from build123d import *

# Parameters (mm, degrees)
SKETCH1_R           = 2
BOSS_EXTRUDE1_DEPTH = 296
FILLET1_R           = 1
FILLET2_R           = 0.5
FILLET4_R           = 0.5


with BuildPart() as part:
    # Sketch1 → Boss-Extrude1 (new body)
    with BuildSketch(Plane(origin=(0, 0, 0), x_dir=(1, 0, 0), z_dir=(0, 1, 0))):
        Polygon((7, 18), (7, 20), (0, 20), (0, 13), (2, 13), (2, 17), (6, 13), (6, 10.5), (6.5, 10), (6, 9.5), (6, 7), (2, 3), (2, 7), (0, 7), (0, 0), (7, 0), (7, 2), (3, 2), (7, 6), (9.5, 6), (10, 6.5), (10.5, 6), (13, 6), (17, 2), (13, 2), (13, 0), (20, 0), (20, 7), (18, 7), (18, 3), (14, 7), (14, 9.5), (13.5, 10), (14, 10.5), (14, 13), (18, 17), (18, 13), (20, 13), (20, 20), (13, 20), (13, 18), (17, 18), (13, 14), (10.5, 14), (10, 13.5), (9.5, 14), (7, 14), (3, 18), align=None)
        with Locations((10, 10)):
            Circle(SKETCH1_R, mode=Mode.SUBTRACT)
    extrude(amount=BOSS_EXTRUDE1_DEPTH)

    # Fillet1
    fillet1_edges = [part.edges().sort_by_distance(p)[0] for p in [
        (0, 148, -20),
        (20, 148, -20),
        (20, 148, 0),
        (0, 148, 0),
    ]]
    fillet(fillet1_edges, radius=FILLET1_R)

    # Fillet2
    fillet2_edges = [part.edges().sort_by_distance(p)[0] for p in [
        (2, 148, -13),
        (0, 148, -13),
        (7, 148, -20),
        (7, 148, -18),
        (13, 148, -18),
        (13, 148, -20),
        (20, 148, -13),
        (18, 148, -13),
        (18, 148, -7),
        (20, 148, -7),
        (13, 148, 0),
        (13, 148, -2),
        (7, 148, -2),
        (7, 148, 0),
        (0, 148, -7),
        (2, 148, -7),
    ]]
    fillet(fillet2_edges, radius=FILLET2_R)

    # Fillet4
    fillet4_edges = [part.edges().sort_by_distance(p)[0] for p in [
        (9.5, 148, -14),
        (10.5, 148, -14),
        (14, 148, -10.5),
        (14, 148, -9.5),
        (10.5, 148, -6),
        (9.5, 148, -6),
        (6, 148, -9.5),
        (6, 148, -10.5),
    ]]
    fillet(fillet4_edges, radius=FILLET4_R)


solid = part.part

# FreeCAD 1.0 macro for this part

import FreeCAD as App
import Part
import Sketcher

V = App.Vector
Q = App.Units.Quantity


def edges_at(feature, points):
    """Names of the edges that pass closest to the given points."""
    edges = feature.Shape.Edges
    near = lambda p: min(range(len(edges)), key=lambda i: edges[i].distToShape(Part.Vertex(*p))[0])
    return sorted({f"Edge{near(p) + 1}" for p in points})

doc = App.newDocument("Part")
body = doc.addObject("PartDesign::Body", "Body")

# Sketch on XZ plane
sketch1 = body.newObject("Sketcher::SketchObject", "Sketch")
sketch1.AttachmentSupport = (doc.getObject("XZ_Plane"), [""])
sketch1.MapMode = "FlatFace"
sketch1.addGeometry([
    Part.LineSegment(V(7, -18, 0), V(7, -20, 0)),  # 0
    Part.LineSegment(V(7, -20, 0), V(0, -20, 0)),  # 1
    Part.LineSegment(V(0, -20, 0), V(0, -13, 0)),  # 2
    Part.LineSegment(V(0, -13, 0), V(2, -13, 0)),  # 3
    Part.LineSegment(V(2, -13, 0), V(2, -17, 0)),  # 4
    Part.LineSegment(V(2, -17, 0), V(6, -13, 0)),  # 5
    Part.LineSegment(V(6, -13, 0), V(6, -10.5, 0)),  # 6
    Part.LineSegment(V(6, -10.5, 0), V(6.5, -10, 0)),  # 7
    Part.LineSegment(V(6.5, -10, 0), V(6, -9.5, 0)),  # 8
    Part.LineSegment(V(6, -9.5, 0), V(6, -7, 0)),  # 9
    Part.LineSegment(V(6, -7, 0), V(2, -3, 0)),  # 10
    Part.LineSegment(V(2, -3, 0), V(2, -7, 0)),  # 11
    Part.LineSegment(V(2, -7, 0), V(0, -7, 0)),  # 12
    Part.LineSegment(V(0, -7, 0), V(0, 0, 0)),  # 13
    Part.LineSegment(V(0, 0, 0), V(7, 0, 0)),  # 14
    Part.LineSegment(V(7, 0, 0), V(7, -2, 0)),  # 15
    Part.LineSegment(V(7, -2, 0), V(3, -2, 0)),  # 16
    Part.LineSegment(V(3, -2, 0), V(7, -6, 0)),  # 17
    Part.LineSegment(V(7, -6, 0), V(9.5, -6, 0)),  # 18
    Part.LineSegment(V(9.5, -6, 0), V(10, -6.5, 0)),  # 19
    Part.LineSegment(V(10, -6.5, 0), V(10.5, -6, 0)),  # 20
    Part.LineSegment(V(10.5, -6, 0), V(13, -6, 0)),  # 21
    Part.LineSegment(V(13, -6, 0), V(17, -2, 0)),  # 22
    Part.LineSegment(V(17, -2, 0), V(13, -2, 0)),  # 23
    Part.LineSegment(V(13, -2, 0), V(13, 0, 0)),  # 24
    Part.LineSegment(V(13, 0, 0), V(20, 0, 0)),  # 25
    Part.LineSegment(V(20, 0, 0), V(20, -7, 0)),  # 26
    Part.LineSegment(V(20, -7, 0), V(18, -7, 0)),  # 27
    Part.LineSegment(V(18, -7, 0), V(18, -3, 0)),  # 28
    Part.LineSegment(V(18, -3, 0), V(14, -7, 0)),  # 29
    Part.LineSegment(V(14, -7, 0), V(14, -9.5, 0)),  # 30
    Part.LineSegment(V(14, -9.5, 0), V(13.5, -10, 0)),  # 31
    Part.LineSegment(V(13.5, -10, 0), V(14, -10.5, 0)),  # 32
    Part.LineSegment(V(14, -10.5, 0), V(14, -13, 0)),  # 33
    Part.LineSegment(V(14, -13, 0), V(18, -17, 0)),  # 34
    Part.LineSegment(V(18, -17, 0), V(18, -13, 0)),  # 35
    Part.LineSegment(V(18, -13, 0), V(20, -13, 0)),  # 36
    Part.LineSegment(V(20, -13, 0), V(20, -20, 0)),  # 37
    Part.LineSegment(V(20, -20, 0), V(13, -20, 0)),  # 38
    Part.LineSegment(V(13, -20, 0), V(13, -18, 0)),  # 39
    Part.LineSegment(V(13, -18, 0), V(17, -18, 0)),  # 40
    Part.LineSegment(V(17, -18, 0), V(13, -14, 0)),  # 41
    Part.LineSegment(V(13, -14, 0), V(10.5, -14, 0)),  # 42
    Part.LineSegment(V(10.5, -14, 0), V(10, -13.5, 0)),  # 43
    Part.LineSegment(V(10, -13.5, 0), V(9.5, -14, 0)),  # 44
    Part.LineSegment(V(9.5, -14, 0), V(7, -14, 0)),  # 45
    Part.LineSegment(V(7, -14, 0), V(3, -18, 0)),  # 46
    Part.LineSegment(V(3, -18, 0), V(7, -18, 0)),  # 47
    Part.Circle(V(10, -10, 0), V(0, 0, 1), 2),  # 48
], False)
sketch1.addConstraint([
    Sketcher.Constraint("Coincident", 0, 2, 1, 1),
    Sketcher.Constraint("Coincident", 1, 2, 2, 1),
    Sketcher.Constraint("Coincident", 2, 2, 3, 1),
    Sketcher.Constraint("Coincident", 3, 2, 4, 1),
    Sketcher.Constraint("Coincident", 4, 2, 5, 1),
    Sketcher.Constraint("Coincident", 5, 2, 6, 1),
    Sketcher.Constraint("Coincident", 6, 2, 7, 1),
    Sketcher.Constraint("Coincident", 7, 2, 8, 1),
    Sketcher.Constraint("Coincident", 8, 2, 9, 1),
    Sketcher.Constraint("Coincident", 9, 2, 10, 1),
    Sketcher.Constraint("Coincident", 10, 2, 11, 1),
    Sketcher.Constraint("Coincident", 11, 2, 12, 1),
    Sketcher.Constraint("Coincident", 12, 2, 13, 1),
    Sketcher.Constraint("Coincident", 13, 2, 14, 1),
    Sketcher.Constraint("Coincident", 14, 2, 15, 1),
    Sketcher.Constraint("Coincident", 15, 2, 16, 1),
    Sketcher.Constraint("Coincident", 16, 2, 17, 1),
    Sketcher.Constraint("Coincident", 17, 2, 18, 1),
    Sketcher.Constraint("Coincident", 18, 2, 19, 1),
    Sketcher.Constraint("Coincident", 19, 2, 20, 1),
    Sketcher.Constraint("Coincident", 20, 2, 21, 1),
    Sketcher.Constraint("Coincident", 21, 2, 22, 1),
    Sketcher.Constraint("Coincident", 22, 2, 23, 1),
    Sketcher.Constraint("Coincident", 23, 2, 24, 1),
    Sketcher.Constraint("Coincident", 24, 2, 25, 1),
    Sketcher.Constraint("Coincident", 25, 2, 26, 1),
    Sketcher.Constraint("Coincident", 26, 2, 27, 1),
    Sketcher.Constraint("Coincident", 27, 2, 28, 1),
    Sketcher.Constraint("Coincident", 28, 2, 29, 1),
    Sketcher.Constraint("Coincident", 29, 2, 30, 1),
    Sketcher.Constraint("Coincident", 30, 2, 31, 1),
    Sketcher.Constraint("Coincident", 31, 2, 32, 1),
    Sketcher.Constraint("Coincident", 32, 2, 33, 1),
    Sketcher.Constraint("Coincident", 33, 2, 34, 1),
    Sketcher.Constraint("Coincident", 34, 2, 35, 1),
    Sketcher.Constraint("Coincident", 35, 2, 36, 1),
    Sketcher.Constraint("Coincident", 36, 2, 37, 1),
    Sketcher.Constraint("Coincident", 37, 2, 38, 1),
    Sketcher.Constraint("Coincident", 38, 2, 39, 1),
    Sketcher.Constraint("Coincident", 39, 2, 40, 1),
    Sketcher.Constraint("Coincident", 40, 2, 41, 1),
    Sketcher.Constraint("Coincident", 41, 2, 42, 1),
    Sketcher.Constraint("Coincident", 42, 2, 43, 1),
    Sketcher.Constraint("Coincident", 43, 2, 44, 1),
    Sketcher.Constraint("Coincident", 44, 2, 45, 1),
    Sketcher.Constraint("Coincident", 45, 2, 46, 1),
    Sketcher.Constraint("Coincident", 46, 2, 47, 1),
    Sketcher.Constraint("Coincident", 47, 2, 0, 1),
    Sketcher.Constraint("Vertical", 0),
    Sketcher.Constraint("Horizontal", 1),
    Sketcher.Constraint("Vertical", 2),
    Sketcher.Constraint("Horizontal", 3),
    Sketcher.Constraint("Vertical", 4),
    Sketcher.Constraint("Vertical", 6),
    Sketcher.Constraint("Vertical", 9),
    Sketcher.Constraint("Vertical", 11),
    Sketcher.Constraint("Horizontal", 12),
    Sketcher.Constraint("Vertical", 13),
    Sketcher.Constraint("Horizontal", 14),
    Sketcher.Constraint("Vertical", 15),
    Sketcher.Constraint("Horizontal", 16),
    Sketcher.Constraint("Horizontal", 18),
    Sketcher.Constraint("Horizontal", 21),
    Sketcher.Constraint("Horizontal", 23),
    Sketcher.Constraint("Vertical", 24),
    Sketcher.Constraint("Horizontal", 25),
    Sketcher.Constraint("Vertical", 26),
    Sketcher.Constraint("Horizontal", 27),
    Sketcher.Constraint("Vertical", 28),
    Sketcher.Constraint("Vertical", 30),
    Sketcher.Constraint("Vertical", 33),
    Sketcher.Constraint("Vertical", 35),
    Sketcher.Constraint("Horizontal", 36),
    Sketcher.Constraint("Vertical", 37),
    Sketcher.Constraint("Horizontal", 38),
    Sketcher.Constraint("Vertical", 39),
    Sketcher.Constraint("Horizontal", 40),
    Sketcher.Constraint("Horizontal", 42),
    Sketcher.Constraint("Horizontal", 45),
    Sketcher.Constraint("Horizontal", 47),
    Sketcher.Constraint("Coincident", 13, 2, -1, 1),
    Sketcher.Constraint("PointOnObject", 1, 2, -2),
    Sketcher.Constraint("PointOnObject", 24, 2, -1),
    Sketcher.Constraint("Parallel", 5, 7),
    Sketcher.Constraint("Perpendicular", 7, 8),
    Sketcher.Constraint("Parallel", 8, 10),
    Sketcher.Constraint("Parallel", 10, 17),
    Sketcher.Constraint("Parallel", 17, 19),
    Sketcher.Constraint("Perpendicular", 19, 20),
    Sketcher.Constraint("Parallel", 20, 22),
    Sketcher.Constraint("Parallel", 22, 29),
    Sketcher.Constraint("Parallel", 29, 31),
    Sketcher.Constraint("Perpendicular", 31, 32),
    Sketcher.Constraint("Parallel", 32, 34),
    Sketcher.Constraint("Parallel", 34, 41),
    Sketcher.Constraint("Parallel", 41, 43),
    Sketcher.Constraint("Perpendicular", 43, 44),
    Sketcher.Constraint("Parallel", 44, 46),
    Sketcher.Constraint("Horizontal", 3, 2, 5, 2),
    Sketcher.Constraint("Horizontal", 48, 3, 7, 2),
    Sketcher.Constraint("Horizontal", 9, 2, 11, 2),
    Sketcher.Constraint("Horizontal", 18, 2, 20, 2),
    Sketcher.Constraint("Horizontal", 16, 2, 22, 2),
    Sketcher.Constraint("Horizontal", 12, 2, 26, 2),
    Sketcher.Constraint("Horizontal", 10, 2, 28, 2),
    Sketcher.Constraint("Horizontal", 27, 2, 29, 2),
    Sketcher.Constraint("Horizontal", 8, 2, 30, 2),
    Sketcher.Constraint("Horizontal", 7, 2, 31, 2),
    Sketcher.Constraint("Horizontal", 6, 2, 32, 2),
    Sketcher.Constraint("Horizontal", 5, 2, 33, 2),
    Sketcher.Constraint("Horizontal", 4, 2, 34, 2),
    Sketcher.Constraint("Horizontal", 33, 2, 35, 2),
    Sketcher.Constraint("Horizontal", 1, 2, 37, 2),
    Sketcher.Constraint("Horizontal", 42, 2, 44, 2),
    Sketcher.Constraint("Horizontal", 40, 2, 46, 2),
    Sketcher.Constraint("Vertical", 6, 2, 8, 2),
    Sketcher.Constraint("Vertical", 4, 2, 10, 2),
    Sketcher.Constraint("Vertical", 0, 2, 14, 2),
    Sketcher.Constraint("Vertical", 15, 2, 17, 2),
    Sketcher.Constraint("Vertical", 48, 3, 19, 2),
    Sketcher.Constraint("Vertical", 21, 2, 23, 2),
    Sketcher.Constraint("Vertical", 30, 2, 32, 2),
    Sketcher.Constraint("Vertical", 26, 2, 36, 2),
    Sketcher.Constraint("Vertical", 24, 2, 38, 2),
    Sketcher.Constraint("Vertical", 22, 2, 40, 2),
    Sketcher.Constraint("Vertical", 39, 2, 41, 2),
    Sketcher.Constraint("Vertical", 20, 2, 42, 2),
    Sketcher.Constraint("Vertical", 19, 2, 43, 2),
    Sketcher.Constraint("Vertical", 17, 2, 45, 2),
    Sketcher.Constraint("Equal", 18, 21),
    Sketcher.Constraint("Equal", 14, 25),
    Sketcher.Constraint("Equal", 12, 27),
    Sketcher.Constraint("Equal", 36, 0),
    Sketcher.Constraint("Equal", 38, 2),
    Sketcher.Constraint("Equal", 47, 4),
    Sketcher.Constraint("Equal", 45, 6),
    Sketcher.Constraint("Equal", 6, 9),
    Sketcher.Constraint("Equal", 2, 13),
    Sketcher.Constraint("Equal", 0, 15),
    Sketcher.Constraint("Equal", 8, 19),
    Sketcher.Constraint("Diameter", 48, Q("4 mm")),
    Sketcher.Constraint("DistanceX", 1, 2, 1, 1, Q("7 mm")),
    Sketcher.Constraint("DistanceX", 3, 1, 3, 2, Q("2 mm")),
    Sketcher.Constraint("DistanceX", 16, 2, 16, 1, Q("4 mm")),
    Sketcher.Constraint("DistanceX", 18, 1, 18, 2, Q("2.5 mm")),
    Sketcher.Constraint("DistanceX", -1, 1, 48, 3, Q("10 mm")),
])
pad1 = body.newObject("PartDesign::Pad", "Pad")
pad1.Profile = sketch1
pad1.Length = 296
pad1.Reversed = True
doc.recompute()

fillet = body.newObject("PartDesign::Fillet", "Fillet")
fillet.Base = (pad1, edges_at(pad1, [
    (0, 148, -20),
    (20, 148, -20),
    (20, 148, 0),
    (0, 148, 0),
]))
fillet.Radius = 1
doc.recompute()

fillet2 = body.newObject("PartDesign::Fillet", "Fillet001")
fillet2.Base = (fillet, edges_at(fillet, [
    (2, 148, -13),
    (0, 148, -13),
    (7, 148, -20),
    (7, 148, -18),
    (13, 148, -18),
    (13, 148, -20),
    (20, 148, -13),
    (18, 148, -13),
    (18, 148, -7),
    (20, 148, -7),
    (13, 148, 0),
    (13, 148, -2),
    (7, 148, -2),
    (7, 148, 0),
    (0, 148, -7),
    (2, 148, -7),
]))
fillet2.Radius = 0.5
doc.recompute()

fillet3 = body.newObject("PartDesign::Fillet", "Fillet002")
fillet3.Base = (fillet2, edges_at(fillet2, [
    (9.5, 148, -14),
    (10.5, 148, -14),
    (14, 148, -10.5),
    (14, 148, -9.5),
    (10.5, 148, -6),
    (9.5, 148, -6),
    (6, 148, -9.5),
    (6, 148, -10.5),
]))
fillet3.Radius = 0.5

doc.recompute()
